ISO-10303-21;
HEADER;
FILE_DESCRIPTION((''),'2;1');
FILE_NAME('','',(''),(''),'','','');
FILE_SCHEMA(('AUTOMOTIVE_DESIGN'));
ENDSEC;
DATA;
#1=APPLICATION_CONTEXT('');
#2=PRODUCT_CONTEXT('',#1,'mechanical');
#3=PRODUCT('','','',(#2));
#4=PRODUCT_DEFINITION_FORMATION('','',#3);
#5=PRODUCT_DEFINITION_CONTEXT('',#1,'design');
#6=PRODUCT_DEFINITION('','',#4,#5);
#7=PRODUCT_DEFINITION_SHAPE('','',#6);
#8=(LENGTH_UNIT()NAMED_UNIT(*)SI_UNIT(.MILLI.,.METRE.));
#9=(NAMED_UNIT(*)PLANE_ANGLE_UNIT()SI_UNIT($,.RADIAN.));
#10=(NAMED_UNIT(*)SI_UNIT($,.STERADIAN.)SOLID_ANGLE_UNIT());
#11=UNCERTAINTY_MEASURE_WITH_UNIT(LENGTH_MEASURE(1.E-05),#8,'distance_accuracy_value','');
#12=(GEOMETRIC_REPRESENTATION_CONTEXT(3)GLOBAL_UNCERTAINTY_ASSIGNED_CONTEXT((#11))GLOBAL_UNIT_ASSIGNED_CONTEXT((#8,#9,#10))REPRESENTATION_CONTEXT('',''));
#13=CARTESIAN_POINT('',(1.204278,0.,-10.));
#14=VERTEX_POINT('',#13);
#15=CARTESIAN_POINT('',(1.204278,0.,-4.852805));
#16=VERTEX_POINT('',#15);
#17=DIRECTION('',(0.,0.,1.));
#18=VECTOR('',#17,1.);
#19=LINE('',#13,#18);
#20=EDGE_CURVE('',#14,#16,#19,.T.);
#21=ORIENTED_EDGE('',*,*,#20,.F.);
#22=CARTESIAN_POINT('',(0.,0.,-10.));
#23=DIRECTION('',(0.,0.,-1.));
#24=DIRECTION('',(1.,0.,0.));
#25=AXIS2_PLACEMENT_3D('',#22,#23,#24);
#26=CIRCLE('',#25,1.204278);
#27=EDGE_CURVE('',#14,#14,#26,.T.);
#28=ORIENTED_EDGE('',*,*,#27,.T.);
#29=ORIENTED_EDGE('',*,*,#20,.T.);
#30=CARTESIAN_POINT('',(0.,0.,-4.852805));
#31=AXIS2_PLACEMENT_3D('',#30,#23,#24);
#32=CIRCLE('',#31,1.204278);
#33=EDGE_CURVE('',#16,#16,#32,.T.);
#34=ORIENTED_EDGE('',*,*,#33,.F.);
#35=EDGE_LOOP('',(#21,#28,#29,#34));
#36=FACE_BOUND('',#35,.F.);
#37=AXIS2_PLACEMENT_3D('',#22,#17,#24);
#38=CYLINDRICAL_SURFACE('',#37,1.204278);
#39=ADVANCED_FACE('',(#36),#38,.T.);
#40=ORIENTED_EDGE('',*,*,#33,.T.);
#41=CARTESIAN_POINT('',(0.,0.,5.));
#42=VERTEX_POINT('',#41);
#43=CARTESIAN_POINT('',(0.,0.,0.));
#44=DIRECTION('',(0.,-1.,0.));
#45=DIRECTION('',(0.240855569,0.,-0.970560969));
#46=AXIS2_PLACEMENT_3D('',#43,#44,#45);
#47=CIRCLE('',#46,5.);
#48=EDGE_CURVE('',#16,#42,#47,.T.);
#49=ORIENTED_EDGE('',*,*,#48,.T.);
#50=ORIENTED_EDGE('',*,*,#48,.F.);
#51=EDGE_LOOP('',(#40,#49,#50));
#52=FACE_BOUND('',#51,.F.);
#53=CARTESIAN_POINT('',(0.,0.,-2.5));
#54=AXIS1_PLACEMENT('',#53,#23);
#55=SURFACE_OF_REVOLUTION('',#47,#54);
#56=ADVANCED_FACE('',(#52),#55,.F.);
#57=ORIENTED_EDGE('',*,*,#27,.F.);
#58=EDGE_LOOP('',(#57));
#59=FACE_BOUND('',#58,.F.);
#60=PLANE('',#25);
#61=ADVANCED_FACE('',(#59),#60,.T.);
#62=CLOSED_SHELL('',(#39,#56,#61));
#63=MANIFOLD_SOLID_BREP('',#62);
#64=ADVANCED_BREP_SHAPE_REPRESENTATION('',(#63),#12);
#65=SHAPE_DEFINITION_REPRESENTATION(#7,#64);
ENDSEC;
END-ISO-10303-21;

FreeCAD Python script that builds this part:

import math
import FreeCAD as App
import Part
import Sketcher
Q = App.Units.Quantity

doc = App.newDocument("Part")
body = doc.addObject("PartDesign::Body", "Body")

sketch1 = body.newObject("Sketcher::SketchObject", "Sketch")
sketch1.AttachmentSupport = (doc.getObject("XZ_Plane"), [""])
sketch1.MapMode = "FlatFace"
sketch1.addGeometry([
    Part.LineSegment(App.Vector(1.204278, -10, 0), App.Vector(1.204278, -4.852805, 0)),
    Part.ArcOfCircle(Part.Circle(App.Vector(0, 0, 0), App.Vector(0, 0, 1), 5), math.radians(-76.062958), math.radians(90.000002)),
    Part.LineSegment(App.Vector(0, 5, 0), App.Vector(0, -10, 0)),
    Part.LineSegment(App.Vector(0, -10, 0), App.Vector(1.204278, -10, 0)),
], False)
sketch1.addConstraint([
    Sketcher.Constraint("Coincident", 0, 2, 1, 1),
    Sketcher.Constraint("Coincident", 1, 2, 2, 1),
    Sketcher.Constraint("Coincident", 2, 2, 3, 1),
    Sketcher.Constraint("Coincident", 3, 2, 0, 1),
    Sketcher.Constraint("Vertical", 0),
    Sketcher.Constraint("Vertical", 2),
    Sketcher.Constraint("Horizontal", 3),
    Sketcher.Constraint("Coincident", 1, 3, -1, 1),
    Sketcher.Constraint("PointOnObject", 1, 2, -2),
    Sketcher.Constraint("Radius", 1, Q("5 mm")),
    Sketcher.Constraint("DistanceY", 2, 2, 2, 1, Q("15 mm")),
    Sketcher.Constraint("DistanceX", 3, 1, 3, 2, Q("1.204278 mm")),
])
revolution = body.newObject("PartDesign::Revolution", "Revolution")
revolution.Profile = sketch1
revolution.ReferenceAxis = (sketch1, ["V_Axis"])
revolution.Angle = 360

doc.recompute()
